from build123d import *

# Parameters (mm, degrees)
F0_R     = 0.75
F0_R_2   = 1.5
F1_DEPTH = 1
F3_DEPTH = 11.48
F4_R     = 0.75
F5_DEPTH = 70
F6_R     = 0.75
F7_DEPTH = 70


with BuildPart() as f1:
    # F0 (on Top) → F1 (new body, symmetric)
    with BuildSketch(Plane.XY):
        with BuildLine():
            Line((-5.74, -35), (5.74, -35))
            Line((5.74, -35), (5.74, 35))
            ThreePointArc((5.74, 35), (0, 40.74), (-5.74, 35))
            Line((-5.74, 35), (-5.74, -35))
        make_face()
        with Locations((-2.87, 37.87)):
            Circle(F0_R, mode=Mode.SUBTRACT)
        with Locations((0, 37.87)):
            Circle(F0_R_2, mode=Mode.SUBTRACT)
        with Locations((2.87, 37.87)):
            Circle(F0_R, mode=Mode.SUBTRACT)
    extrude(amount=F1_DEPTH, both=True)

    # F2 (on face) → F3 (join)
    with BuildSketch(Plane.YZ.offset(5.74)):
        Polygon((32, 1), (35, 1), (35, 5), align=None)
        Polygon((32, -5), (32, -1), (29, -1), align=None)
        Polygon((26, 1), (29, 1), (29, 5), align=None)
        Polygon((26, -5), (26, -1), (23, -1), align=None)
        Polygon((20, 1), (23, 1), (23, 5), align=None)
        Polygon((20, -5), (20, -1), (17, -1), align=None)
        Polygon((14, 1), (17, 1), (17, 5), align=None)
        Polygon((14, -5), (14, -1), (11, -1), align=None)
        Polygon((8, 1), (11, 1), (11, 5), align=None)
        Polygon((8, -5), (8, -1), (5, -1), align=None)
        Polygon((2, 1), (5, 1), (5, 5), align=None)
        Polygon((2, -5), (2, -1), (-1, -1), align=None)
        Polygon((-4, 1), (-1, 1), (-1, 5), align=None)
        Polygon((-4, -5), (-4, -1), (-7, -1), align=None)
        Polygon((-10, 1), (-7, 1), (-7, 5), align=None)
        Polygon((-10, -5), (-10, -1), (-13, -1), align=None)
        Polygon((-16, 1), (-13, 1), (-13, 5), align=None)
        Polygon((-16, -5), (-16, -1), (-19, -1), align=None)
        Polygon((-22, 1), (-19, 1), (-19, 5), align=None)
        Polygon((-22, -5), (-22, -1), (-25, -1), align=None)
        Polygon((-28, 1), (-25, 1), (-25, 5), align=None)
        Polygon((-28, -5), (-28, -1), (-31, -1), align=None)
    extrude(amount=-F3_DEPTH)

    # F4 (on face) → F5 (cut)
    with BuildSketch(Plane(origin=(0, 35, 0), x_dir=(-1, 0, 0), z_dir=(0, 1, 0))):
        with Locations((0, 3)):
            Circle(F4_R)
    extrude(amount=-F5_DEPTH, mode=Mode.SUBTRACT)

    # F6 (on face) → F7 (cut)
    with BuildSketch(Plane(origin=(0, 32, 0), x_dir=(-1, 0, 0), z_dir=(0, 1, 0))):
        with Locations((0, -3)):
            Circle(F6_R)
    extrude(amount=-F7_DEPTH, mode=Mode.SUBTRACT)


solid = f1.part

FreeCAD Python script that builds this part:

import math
import FreeCAD as App
import Part
import Sketcher

V = App.Vector
Q = App.Units.Quantity

doc = App.newDocument("Part")
body = doc.addObject("PartDesign::Body", "Body")

# Sketch on XY plane
sketch1 = body.newObject("Sketcher::SketchObject", "Sketch")
sketch1.AttachmentSupport = (doc.getObject("XY_Plane"), [""])
sketch1.MapMode = "FlatFace"
sketch1.addGeometry([
    Part.LineSegment(V(-5.74, -35, 0), V(5.74, -35, 0)),  # 0
    Part.LineSegment(V(5.74, -35, 0), V(5.74, 35, 0)),  # 1
    Part.ArcOfCircle(Part.Circle(V(0, 35, 0), V(0, 0, 1), 5.74), math.radians(0), math.radians(180)),  # 2
    Part.LineSegment(V(-5.74, 35, 0), V(-5.74, -35, 0)),  # 3
    Part.Circle(V(-2.87, 37.87, 0), V(0, 0, 1), 0.75),  # 4
    Part.Circle(V(0, 37.87, 0), V(0, 0, 1), 1.5),  # 5
    Part.Circle(V(2.87, 37.87, 0), V(0, 0, 1), 0.75),  # 6
], False)
sketch1.addConstraint([
    Sketcher.Constraint("Coincident", 0, 2, 1, 1),
    Sketcher.Constraint("Tangent", 1, 2, 2, 1),
    Sketcher.Constraint("Tangent", 2, 2, 3, 1),
    Sketcher.Constraint("Coincident", 3, 2, 0, 1),
    Sketcher.Constraint("Horizontal", 0),
    Sketcher.Constraint("Vertical", 1),
    Sketcher.Constraint("Vertical", 3),
    Sketcher.Constraint("Equal", 4, 6),
    Sketcher.Constraint("Symmetric", 0, 2, 2, 2, -1, 1),
    Sketcher.Constraint("Symmetric", 4, 3, 6, 3, -2),
    Sketcher.Constraint("PointOnObject", 5, 3, -2),
    Sketcher.Constraint("Horizontal", 4, 3, 5, 3),
    Sketcher.Constraint("Diameter", 5, Q("3 mm")),
    Sketcher.Constraint("Diameter", 4, Q("1.5 mm")),
    Sketcher.Constraint("DistanceY", 1, 1, 1, 2, Q("70 mm")),
    Sketcher.Constraint("Radius", 2, Q("5.74 mm")),
    Sketcher.Constraint("DistanceX", 4, 3, -1, 1, Q("2.87 mm")),
    Sketcher.Constraint("DistanceY", -1, 1, 4, 3, Q("37.87 mm")),
])
pad1 = body.newObject("PartDesign::Pad", "Pad")
pad1.Profile = sketch1
pad1.Length = 2
pad1.Midplane = True

# Sketch on YZ plane
sketch2 = body.newObject("Sketcher::SketchObject", "Sketch001")
sketch2.AttachmentSupport = (doc.getObject("YZ_Plane"), [""])
sketch2.MapMode = "FlatFace"
sketch2.AttachmentOffset = App.Placement(V(0, 0, 5.74), App.Rotation())
sketch2.addGeometry([
    Part.LineSegment(V(32, 1, 0), V(35, 1, 0)),  # 0
    Part.LineSegment(V(35, 1, 0), V(35, 5, 0)),  # 1
    Part.LineSegment(V(35, 5, 0), V(32, 1, 0)),  # 2
    Part.LineSegment(V(32, -5, 0), V(32, -1, 0)),  # 3
    Part.LineSegment(V(32, -1, 0), V(29, -1, 0)),  # 4
    Part.LineSegment(V(29, -1, 0), V(32, -5, 0)),  # 5
    Part.LineSegment(V(26, 1, 0), V(29, 1, 0)),  # 6
    Part.LineSegment(V(29, 1, 0), V(29, 5, 0)),  # 7
    Part.LineSegment(V(29, 5, 0), V(26, 1, 0)),  # 8
    Part.LineSegment(V(26, -5, 0), V(26, -1, 0)),  # 9
    Part.LineSegment(V(26, -1, 0), V(23, -1, 0)),  # 10
    Part.LineSegment(V(23, -1, 0), V(26, -5, 0)),  # 11
    Part.LineSegment(V(20, 1, 0), V(23, 1, 0)),  # 12
    Part.LineSegment(V(23, 1, 0), V(23, 5, 0)),  # 13
    Part.LineSegment(V(23, 5, 0), V(20, 1, 0)),  # 14
    Part.LineSegment(V(20, -5, 0), V(20, -1, 0)),  # 15
    Part.LineSegment(V(20, -1, 0), V(17, -1, 0)),  # 16
    Part.LineSegment(V(17, -1, 0), V(20, -5, 0)),  # 17
    Part.LineSegment(V(14, 1, 0), V(17, 1, 0)),  # 18
    Part.LineSegment(V(17, 1, 0), V(17, 5, 0)),  # 19
    Part.LineSegment(V(17, 5, 0), V(14, 1, 0)),  # 20
    Part.LineSegment(V(14, -5, 0), V(14, -1, 0)),  # 21
    Part.LineSegment(V(14, -1, 0), V(11, -1, 0)),  # 22
    Part.LineSegment(V(11, -1, 0), V(14, -5, 0)),  # 23
    Part.LineSegment(V(8, 1, 0), V(11, 1, 0)),  # 24
    Part.LineSegment(V(11, 1, 0), V(11, 5, 0)),  # 25
    Part.LineSegment(V(11, 5, 0), V(8, 1, 0)),  # 26
    Part.LineSegment(V(8, -5, 0), V(8, -1, 0)),  # 27
    Part.LineSegment(V(8, -1, 0), V(5, -1, 0)),  # 28
    Part.LineSegment(V(5, -1, 0), V(8, -5, 0)),  # 29
    Part.LineSegment(V(2, 1, 0), V(5, 1, 0)),  # 30
    Part.LineSegment(V(5, 1, 0), V(5, 5, 0)),  # 31
    Part.LineSegment(V(5, 5, 0), V(2, 1, 0)),  # 32
    Part.LineSegment(V(2, -5, 0), V(2, -1, 0)),  # 33
    Part.LineSegment(V(2, -1, 0), V(-1, -1, 0)),  # 34
    Part.LineSegment(V(-1, -1, 0), V(2, -5, 0)),  # 35
    Part.LineSegment(V(-4, 1, 0), V(-1, 1, 0)),  # 36
    Part.LineSegment(V(-1, 1, 0), V(-1, 5, 0)),  # 37
    Part.LineSegment(V(-1, 5, 0), V(-4, 1, 0)),  # 38
    Part.LineSegment(V(-4, -5, 0), V(-4, -1, 0)),  # 39
    Part.LineSegment(V(-4, -1, 0), V(-7, -1, 0)),  # 40
    Part.LineSegment(V(-7, -1, 0), V(-4, -5, 0)),  # 41
    Part.LineSegment(V(-10, 1, 0), V(-7, 1, 0)),  # 42
    Part.LineSegment(V(-7, 1, 0), V(-7, 5, 0)),  # 43
    Part.LineSegment(V(-7, 5, 0), V(-10, 1, 0)),  # 44
    Part.LineSegment(V(-10, -5, 0), V(-10, -1, 0)),  # 45
    Part.LineSegment(V(-10, -1, 0), V(-13, -1, 0)),  # 46
    Part.LineSegment(V(-13, -1, 0), V(-10, -5, 0)),  # 47
    Part.LineSegment(V(-16, 1, 0), V(-13, 1, 0)),  # 48
    Part.LineSegment(V(-13, 1, 0), V(-13, 5, 0)),  # 49
    Part.LineSegment(V(-13, 5, 0), V(-16, 1, 0)),  # 50
    Part.LineSegment(V(-16, -5, 0), V(-16, -1, 0)),  # 51
    Part.LineSegment(V(-16, -1, 0), V(-19, -1, 0)),  # 52
    Part.LineSegment(V(-19, -1, 0), V(-16, -5, 0)),  # 53
    Part.LineSegment(V(-22, 1, 0), V(-19, 1, 0)),  # 54
    Part.LineSegment(V(-19, 1, 0), V(-19, 5, 0)),  # 55
    Part.LineSegment(V(-19, 5, 0), V(-22, 1, 0)),  # 56
    Part.LineSegment(V(-22, -5, 0), V(-22, -1, 0)),  # 57
    Part.LineSegment(V(-22, -1, 0), V(-25, -1, 0)),  # 58
    Part.LineSegment(V(-25, -1, 0), V(-22, -5, 0)),  # 59
    Part.LineSegment(V(-28, 1, 0), V(-25, 1, 0)),  # 60
    Part.LineSegment(V(-25, 1, 0), V(-25, 5, 0)),  # 61
    Part.LineSegment(V(-25, 5, 0), V(-28, 1, 0)),  # 62
    Part.LineSegment(V(-28, -5, 0), V(-28, -1, 0)),  # 63
    Part.LineSegment(V(-28, -1, 0), V(-31, -1, 0)),  # 64
    Part.LineSegment(V(-31, -1, 0), V(-28, -5, 0)),  # 65
], False)
sketch2.addConstraint([
    Sketcher.Constraint("Coincident", 0, 2, 1, 1),
    Sketcher.Constraint("Coincident", 1, 2, 2, 1),
    Sketcher.Constraint("Coincident", 2, 2, 0, 1),
    Sketcher.Constraint("Coincident", 3, 2, 4, 1),
    Sketcher.Constraint("Coincident", 4, 2, 5, 1),
    Sketcher.Constraint("Coincident", 5, 2, 3, 1),
    Sketcher.Constraint("Coincident", 6, 2, 7, 1),
    Sketcher.Constraint("Coincident", 7, 2, 8, 1),
    Sketcher.Constraint("Coincident", 8, 2, 6, 1),
    Sketcher.Constraint("Coincident", 9, 2, 10, 1),
    Sketcher.Constraint("Coincident", 10, 2, 11, 1),
    Sketcher.Constraint("Coincident", 11, 2, 9, 1),
    Sketcher.Constraint("Coincident", 12, 2, 13, 1),
    Sketcher.Constraint("Coincident", 13, 2, 14, 1),
    Sketcher.Constraint("Coincident", 14, 2, 12, 1),
    Sketcher.Constraint("Coincident", 15, 2, 16, 1),
    Sketcher.Constraint("Coincident", 16, 2, 17, 1),
    Sketcher.Constraint("Coincident", 17, 2, 15, 1),
    Sketcher.Constraint("Coincident", 18, 2, 19, 1),
    Sketcher.Constraint("Coincident", 19, 2, 20, 1),
    Sketcher.Constraint("Coincident", 20, 2, 18, 1),
    Sketcher.Constraint("Coincident", 21, 2, 22, 1),
    Sketcher.Constraint("Coincident", 22, 2, 23, 1),
    Sketcher.Constraint("Coincident", 23, 2, 21, 1),
    Sketcher.Constraint("Coincident", 24, 2, 25, 1),
    Sketcher.Constraint("Coincident", 25, 2, 26, 1),
    Sketcher.Constraint("Coincident", 26, 2, 24, 1),
    Sketcher.Constraint("Coincident", 27, 2, 28, 1),
    Sketcher.Constraint("Coincident", 28, 2, 29, 1),
    Sketcher.Constraint("Coincident", 29, 2, 27, 1),
    Sketcher.Constraint("Coincident", 30, 2, 31, 1),
    Sketcher.Constraint("Coincident", 31, 2, 32, 1),
    Sketcher.Constraint("Coincident", 32, 2, 30, 1),
    Sketcher.Constraint("Coincident", 33, 2, 34, 1),
    Sketcher.Constraint("Coincident", 34, 2, 35, 1),
    Sketcher.Constraint("Coincident", 35, 2, 33, 1),
    Sketcher.Constraint("Coincident", 36, 2, 37, 1),
    Sketcher.Constraint("Coincident", 37, 2, 38, 1),
    Sketcher.Constraint("Coincident", 38, 2, 36, 1),
    Sketcher.Constraint("Coincident", 39, 2, 40, 1),
    Sketcher.Constraint("Coincident", 40, 2, 41, 1),
    Sketcher.Constraint("Coincident", 41, 2, 39, 1),
    Sketcher.Constraint("Coincident", 42, 2, 43, 1),
    Sketcher.Constraint("Coincident", 43, 2, 44, 1),
    Sketcher.Constraint("Coincident", 44, 2, 42, 1),
    Sketcher.Constraint("Coincident", 45, 2, 46, 1),
    Sketcher.Constraint("Coincident", 46, 2, 47, 1),
    Sketcher.Constraint("Coincident", 47, 2, 45, 1),
    Sketcher.Constraint("Coincident", 48, 2, 49, 1),
    Sketcher.Constraint("Coincident", 49, 2, 50, 1),
    Sketcher.Constraint("Coincident", 50, 2, 48, 1),
    Sketcher.Constraint("Coincident", 51, 2, 52, 1),
    Sketcher.Constraint("Coincident", 52, 2, 53, 1),
    Sketcher.Constraint("Coincident", 53, 2, 51, 1),
    Sketcher.Constraint("Coincident", 54, 2, 55, 1),
    Sketcher.Constraint("Coincident", 55, 2, 56, 1),
    Sketcher.Constraint("Coincident", 56, 2, 54, 1),
    Sketcher.Constraint("Coincident", 57, 2, 58, 1),
    Sketcher.Constraint("Coincident", 58, 2, 59, 1),
    Sketcher.Constraint("Coincident", 59, 2, 57, 1),
    Sketcher.Constraint("Coincident", 60, 2, 61, 1),
    Sketcher.Constraint("Coincident", 61, 2, 62, 1),
    Sketcher.Constraint("Coincident", 62, 2, 60, 1),
    Sketcher.Constraint("Coincident", 63, 2, 64, 1),
    Sketcher.Constraint("Coincident", 64, 2, 65, 1),
    Sketcher.Constraint("Coincident", 65, 2, 63, 1),
    Sketcher.Constraint("Horizontal", 0),
    Sketcher.Constraint("Vertical", 1),
    Sketcher.Constraint("Vertical", 3),
    Sketcher.Constraint("Horizontal", 4),
    Sketcher.Constraint("Horizontal", 6),
    Sketcher.Constraint("Vertical", 7),
    Sketcher.Constraint("Vertical", 9),
    Sketcher.Constraint("Horizontal", 10),
    Sketcher.Constraint("Horizontal", 12),
    Sketcher.Constraint("Vertical", 13),
    Sketcher.Constraint("Vertical", 15),
    Sketcher.Constraint("Horizontal", 16),
    Sketcher.Constraint("Horizontal", 18),
    Sketcher.Constraint("Vertical", 19),
    Sketcher.Constraint("Vertical", 21),
    Sketcher.Constraint("Horizontal", 22),
    Sketcher.Constraint("Horizontal", 24),
    Sketcher.Constraint("Vertical", 25),
    Sketcher.Constraint("Vertical", 27),
    Sketcher.Constraint("Horizontal", 28),
    Sketcher.Constraint("Horizontal", 30),
    Sketcher.Constraint("Vertical", 31),
    Sketcher.Constraint("Vertical", 33),
    Sketcher.Constraint("Horizontal", 34),
    Sketcher.Constraint("Horizontal", 36),
    Sketcher.Constraint("Vertical", 37),
    Sketcher.Constraint("Vertical", 39),
    Sketcher.Constraint("Horizontal", 40),
    Sketcher.Constraint("Horizontal", 42),
    Sketcher.Constraint("Vertical", 43),
    Sketcher.Constraint("Vertical", 45),
    Sketcher.Constraint("Horizontal", 46),
    Sketcher.Constraint("Horizontal", 48),
    Sketcher.Constraint("Vertical", 49),
    Sketcher.Constraint("Vertical", 51),
    Sketcher.Constraint("Horizontal", 52),
    Sketcher.Constraint("Horizontal", 54),
    Sketcher.Constraint("Vertical", 55),
    Sketcher.Constraint("Vertical", 57),
    Sketcher.Constraint("Horizontal", 58),
    Sketcher.Constraint("Horizontal", 60),
    Sketcher.Constraint("Vertical", 61),
    Sketcher.Constraint("Vertical", 63),
    Sketcher.Constraint("Horizontal", 64),
    Sketcher.Constraint("Symmetric", 2, 2, 3, 2, -1),
    Sketcher.Constraint("Symmetric", 4, 2, 6, 2, -1),
    Sketcher.Constraint("Symmetric", 8, 2, 9, 2, -1),
    Sketcher.Constraint("Symmetric", 10, 2, 12, 2, -1),
    Sketcher.Constraint("Symmetric", 14, 2, 15, 2, -1),
    Sketcher.Constraint("Symmetric", 16, 2, 18, 2, -1),
    Sketcher.Constraint("Symmetric", 20, 2, 21, 2, -1),
    Sketcher.Constraint("Symmetric", 22, 2, 24, 2, -1),
    Sketcher.Constraint("Symmetric", 26, 2, 27, 2, -1),
    Sketcher.Constraint("Symmetric", 28, 2, 30, 2, -1),
    Sketcher.Constraint("Symmetric", 32, 2, 33, 2, -1),
    Sketcher.Constraint("Symmetric", 34, 2, 36, 2, -1),
    Sketcher.Constraint("Symmetric", 38, 2, 39, 2, -1),
    Sketcher.Constraint("Symmetric", 40, 2, 42, 2, -1),
    Sketcher.Constraint("Symmetric", 44, 2, 45, 2, -1),
    Sketcher.Constraint("Symmetric", 46, 2, 48, 2, -1),
    Sketcher.Constraint("Symmetric", 50, 2, 51, 2, -1),
    Sketcher.Constraint("Symmetric", 52, 2, 54, 2, -1),
    Sketcher.Constraint("Symmetric", 56, 2, 57, 2, -1),
    Sketcher.Constraint("Symmetric", 58, 2, 60, 2, -1),
    Sketcher.Constraint("Symmetric", 62, 2, 63, 2, -1),
    Sketcher.Constraint("Parallel", 2, 8),
    Sketcher.Constraint("Parallel", 5, 11),
    Sketcher.Constraint("Parallel", 8, 14),
    Sketcher.Constraint("Parallel", 11, 17),
    Sketcher.Constraint("Parallel", 14, 20),
    Sketcher.Constraint("Parallel", 17, 23),
    Sketcher.Constraint("Parallel", 20, 26),
    Sketcher.Constraint("Parallel", 23, 29),
    Sketcher.Constraint("Parallel", 26, 32),
    Sketcher.Constraint("Parallel", 29, 35),
    Sketcher.Constraint("Parallel", 32, 38),
    Sketcher.Constraint("Parallel", 35, 41),
    Sketcher.Constraint("Parallel", 38, 44),
    Sketcher.Constraint("Parallel", 41, 47),
    Sketcher.Constraint("Parallel", 44, 50),
    Sketcher.Constraint("Parallel", 47, 53),
    Sketcher.Constraint("Parallel", 50, 56),
    Sketcher.Constraint("Parallel", 53, 59),
    Sketcher.Constraint("Parallel", 56, 62),
    Sketcher.Constraint("Parallel", 59, 65),
    Sketcher.Constraint("Horizontal", 1, 2, 7, 2),
    Sketcher.Constraint("Horizontal", 5, 2, 11, 2),
    Sketcher.Constraint("Horizontal", 7, 2, 13, 2),
    Sketcher.Constraint("Horizontal", 11, 2, 17, 2),
    Sketcher.Constraint("Horizontal", 13, 2, 19, 2),
    Sketcher.Constraint("Horizontal", 17, 2, 23, 2),
    Sketcher.Constraint("Horizontal", 19, 2, 25, 2),
    Sketcher.Constraint("Horizontal", 23, 2, 29, 2),
    Sketcher.Constraint("Horizontal", 25, 2, 31, 2),
    Sketcher.Constraint("Horizontal", 29, 2, 35, 2),
    Sketcher.Constraint("Horizontal", 31, 2, 37, 2),
    Sketcher.Constraint("Horizontal", 35, 2, 41, 2),
    Sketcher.Constraint("Horizontal", 37, 2, 43, 2),
    Sketcher.Constraint("Horizontal", 41, 2, 47, 2),
    Sketcher.Constraint("Horizontal", 43, 2, 49, 2),
    Sketcher.Constraint("Horizontal", 47, 2, 53, 2),
    Sketcher.Constraint("Horizontal", 49, 2, 55, 2),
    Sketcher.Constraint("Horizontal", 53, 2, 59, 2),
    Sketcher.Constraint("Horizontal", 55, 2, 61, 2),
    Sketcher.Constraint("Horizontal", 59, 2, 65, 2),
    Sketcher.Constraint("Equal", 0, 4),
    Sketcher.Constraint("Equal", 1, 3),
    Sketcher.Constraint("DistanceX", 0, 1, 0, 2, Q("3 mm")),
    Sketcher.Constraint("DistanceY", 1, 1, 1, 2, Q("4 mm")),
    Sketcher.Constraint("DistanceX", -1, 1, 0, 2, Q("35 mm")),
    Sketcher.Constraint("DistanceY", -1, 1, 0, 2, Q("1 mm")),
])
pad2 = body.newObject("PartDesign::Pad", "Pad001")
pad2.Profile = sketch2
pad2.Length = 11.48
pad2.Reversed = True

# Sketch on XZ plane
sketch3 = body.newObject("Sketcher::SketchObject", "Sketch002")
sketch3.AttachmentSupport = (doc.getObject("XZ_Plane"), [""])
sketch3.MapMode = "FlatFace"
sketch3.AttachmentOffset = App.Placement(V(0, 0, -35), App.Rotation())
sketch3.addGeometry(Part.Circle(V(0, 3, 0), V(0, 0, 1), 0.75), False)
sketch3.addConstraint([
    Sketcher.Constraint("PointOnObject", 0, 3, -2),
    Sketcher.Constraint("Diameter", 0, Q("1.5 mm")),
    Sketcher.Constraint("DistanceY", -1, 1, 0, 3, Q("3 mm")),
])
pocket1 = body.newObject("PartDesign::Pocket", "Pocket")
pocket1.Profile = sketch3
pocket1.Length = 70
pocket1.Reversed = True

# Sketch on XZ plane
sketch4 = body.newObject("Sketcher::SketchObject", "Sketch003")
sketch4.AttachmentSupport = (doc.getObject("XZ_Plane"), [""])
sketch4.MapMode = "FlatFace"
sketch4.AttachmentOffset = App.Placement(V(0, 0, -32), App.Rotation())
sketch4.addGeometry(Part.Circle(V(0, -3, 0), V(0, 0, 1), 0.75), False)
sketch4.addConstraint([
    Sketcher.Constraint("PointOnObject", 0, 3, -2),
    Sketcher.Constraint("Diameter", 0, Q("1.5 mm")),
    Sketcher.Constraint("DistanceY", 0, 3, -1, 1, Q("3 mm")),
])
pocket2 = body.newObject("PartDesign::Pocket", "Pocket001")
pocket2.Profile = sketch4
pocket2.Length = 70
pocket2.Reversed = True

doc.recompute()
